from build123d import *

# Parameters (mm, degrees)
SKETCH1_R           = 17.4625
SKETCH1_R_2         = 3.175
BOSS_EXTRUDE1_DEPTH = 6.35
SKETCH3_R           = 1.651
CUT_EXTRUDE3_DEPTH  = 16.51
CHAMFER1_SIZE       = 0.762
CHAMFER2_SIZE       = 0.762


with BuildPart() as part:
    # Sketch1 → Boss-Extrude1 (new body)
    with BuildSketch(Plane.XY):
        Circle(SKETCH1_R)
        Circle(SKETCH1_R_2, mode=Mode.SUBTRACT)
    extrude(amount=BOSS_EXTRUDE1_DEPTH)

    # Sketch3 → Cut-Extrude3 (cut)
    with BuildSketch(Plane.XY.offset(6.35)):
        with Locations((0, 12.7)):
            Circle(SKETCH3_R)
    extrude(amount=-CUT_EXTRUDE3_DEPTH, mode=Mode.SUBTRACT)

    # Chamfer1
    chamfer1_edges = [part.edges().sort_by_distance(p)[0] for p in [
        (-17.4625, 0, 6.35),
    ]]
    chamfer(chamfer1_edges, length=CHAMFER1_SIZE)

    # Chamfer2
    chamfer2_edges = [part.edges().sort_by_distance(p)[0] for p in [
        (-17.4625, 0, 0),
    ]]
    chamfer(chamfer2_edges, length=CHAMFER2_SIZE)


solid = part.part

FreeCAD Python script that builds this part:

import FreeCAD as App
import Part
import Sketcher

V = App.Vector
Q = App.Units.Quantity


def edges_at(feature, points):
    """Names of the edges that pass closest to the given points."""
    edges = feature.Shape.Edges
    near = lambda p: min(range(len(edges)), key=lambda i: edges[i].distToShape(Part.Vertex(*p))[0])
    return sorted({f"Edge{near(p) + 1}" for p in points})

doc = App.newDocument("Part")
body = doc.addObject("PartDesign::Body", "Body")

sketch1 = body.newObject("Sketcher::SketchObject", "Sketch")
sketch1.AttachmentSupport = (doc.getObject("XY_Plane"), [""])
sketch1.MapMode = "FlatFace"
sketch1.addGeometry(Part.Circle(V(0, 0, 0), V(0, 0, 1), 17.5), False)
sketch1.addGeometry(Part.Circle(V(0, 0, 0), V(0, 0, 1), 3.2), False)
sketch1.addConstraint(Sketcher.Constraint("Coincident", 0, 3, -1, 1))
sketch1.addConstraint(Sketcher.Constraint("Coincident", 1, 3, -1, 1))
sketch1.addConstraint(Sketcher.Constraint("Diameter", 1, Q("0.25 in")))
sketch1.addConstraint(Sketcher.Constraint("Diameter", 0, Q("1.375 in")))
pad1 = body.newObject("PartDesign::Pad", "Pad")
pad1.Profile = sketch1
pad1.Length = Q("0.25 in")

sketch2 = body.newObject("Sketcher::SketchObject", "Sketch001")
sketch2.AttachmentSupport = (doc.getObject("XY_Plane"), [""])
sketch2.MapMode = "FlatFace"
sketch2.AttachmentOffset = App.Placement(V(0, 0, 0.25 * 25.4), App.Rotation())
sketch2.addGeometry(Part.Circle(V(0, 12.7, 0), V(0, 0, 1), 1.7), False)
sketch2.addConstraint(Sketcher.Constraint("PointOnObject", 0, 3, -2))
sketch2.addConstraint(Sketcher.Constraint("Diameter", 0, Q("0.13 in")))
sketch2.addConstraint(Sketcher.Constraint("DistanceY", -1, 1, 0, 3, Q("0.5 in")))
pocket1 = body.newObject("PartDesign::Pocket", "Pocket")
pocket1.Profile = sketch2
pocket1.Length = Q("0.65 in")
doc.recompute()

chamfer = body.newObject("PartDesign::Chamfer", "Chamfer")
chamfer.Base = (pocket1, edges_at(pocket1, [(-17.462, 0, 6.35)]))
chamfer.Size = Q("0.03 in")
doc.recompute()

chamfer2 = body.newObject("PartDesign::Chamfer", "Chamfer001")
chamfer2.Base = (chamfer, edges_at(chamfer, [(-17.462, 0, 0)]))
chamfer2.Size = Q("0.03 in")

doc.recompute()
